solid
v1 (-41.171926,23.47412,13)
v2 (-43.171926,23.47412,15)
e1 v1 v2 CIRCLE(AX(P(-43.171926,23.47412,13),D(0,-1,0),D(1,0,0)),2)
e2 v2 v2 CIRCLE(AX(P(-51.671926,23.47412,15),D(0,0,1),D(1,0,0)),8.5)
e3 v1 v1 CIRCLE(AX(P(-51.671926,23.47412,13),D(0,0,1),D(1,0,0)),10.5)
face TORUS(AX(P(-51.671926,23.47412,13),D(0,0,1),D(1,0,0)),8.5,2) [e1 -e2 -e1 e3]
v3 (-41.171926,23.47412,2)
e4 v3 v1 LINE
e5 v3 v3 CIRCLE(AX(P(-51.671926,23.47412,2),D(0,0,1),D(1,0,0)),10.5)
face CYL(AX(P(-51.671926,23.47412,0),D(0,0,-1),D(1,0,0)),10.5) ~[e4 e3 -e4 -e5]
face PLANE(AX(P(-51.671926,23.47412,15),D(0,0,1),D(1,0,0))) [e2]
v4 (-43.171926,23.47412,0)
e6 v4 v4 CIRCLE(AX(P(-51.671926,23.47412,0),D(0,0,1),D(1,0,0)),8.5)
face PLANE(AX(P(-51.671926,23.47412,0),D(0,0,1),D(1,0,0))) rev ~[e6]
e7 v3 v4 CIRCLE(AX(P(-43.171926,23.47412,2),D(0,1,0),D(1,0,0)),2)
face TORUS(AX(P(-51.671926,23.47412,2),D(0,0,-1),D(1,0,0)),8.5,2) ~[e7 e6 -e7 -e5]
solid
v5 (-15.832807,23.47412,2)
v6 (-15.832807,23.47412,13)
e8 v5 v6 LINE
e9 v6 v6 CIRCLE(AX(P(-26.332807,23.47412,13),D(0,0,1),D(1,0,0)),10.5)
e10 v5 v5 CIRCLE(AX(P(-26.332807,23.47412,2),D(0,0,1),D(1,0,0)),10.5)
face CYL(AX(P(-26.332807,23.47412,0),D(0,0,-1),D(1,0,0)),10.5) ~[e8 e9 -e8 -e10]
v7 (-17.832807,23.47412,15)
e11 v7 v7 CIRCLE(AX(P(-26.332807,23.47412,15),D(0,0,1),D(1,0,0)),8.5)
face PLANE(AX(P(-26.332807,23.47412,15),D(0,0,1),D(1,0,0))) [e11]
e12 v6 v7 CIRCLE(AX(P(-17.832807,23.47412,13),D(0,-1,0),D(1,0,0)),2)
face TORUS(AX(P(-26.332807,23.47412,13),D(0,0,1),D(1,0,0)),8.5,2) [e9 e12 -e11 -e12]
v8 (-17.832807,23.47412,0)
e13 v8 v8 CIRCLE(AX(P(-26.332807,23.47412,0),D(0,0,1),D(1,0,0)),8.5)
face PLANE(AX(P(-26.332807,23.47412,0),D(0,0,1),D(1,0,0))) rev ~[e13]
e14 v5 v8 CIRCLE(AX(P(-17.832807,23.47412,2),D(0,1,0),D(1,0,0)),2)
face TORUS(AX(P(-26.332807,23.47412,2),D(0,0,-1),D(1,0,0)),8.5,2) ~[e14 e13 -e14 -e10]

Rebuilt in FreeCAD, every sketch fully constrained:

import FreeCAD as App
import Part
import Sketcher


def edges_at(feature, points):
    """Names of the edges that pass closest to the given points."""
    edges = feature.Shape.Edges
    near = lambda p: min(range(len(edges)), key=lambda i: edges[i].distToShape(Part.Vertex(*p))[0])
    return sorted({f"Edge{near(p) + 1}" for p in points})

doc = App.newDocument("Part")
body = doc.addObject("PartDesign::Body", "Body")
body.AllowCompound = True

sketch1 = body.newObject("Sketcher::SketchObject", "Sketch")
sketch1.AttachmentSupport = (doc.getObject("XY_Plane"), [""])
sketch1.MapMode = "FlatFace"
sketch1.addGeometry([
    Part.Circle(App.Vector(-52, 23, 0), App.Vector(0, 0, 1), 10),
    Part.Circle(App.Vector(-26, 23, 0), App.Vector(0, 0, 1), 10),
], False)
sketch1.addConstraint([
    Sketcher.Constraint("Equal", 0, 1),
    Sketcher.Constraint("Horizontal", 0, 3, 1, 3),
    Sketcher.Constraint("Diameter", 0, 21.0),
    Sketcher.Constraint("DistanceY", -1, 1, 0, 3, 23.47412),
    Sketcher.Constraint("DistanceX", 0, 3, 1, 3, 25.339119),
    Sketcher.Constraint("DistanceX", 0, 3, -1, 1, 51.671926),
])
pad1 = body.newObject("PartDesign::Pad", "Pad")
pad1.Profile = sketch1
pad1.Length = 15
doc.recompute()

fillet = body.newObject("PartDesign::Fillet", "Fillet")
fillet.Base = (pad1, edges_at(pad1, [
    (-36.833, 23.474, 15),
    (-62.172, 23.474, 15),
    (-62.172, 23.474, 0),
    (-36.833, 23.474, 0),
]))
fillet.Radius = 2

doc.recompute()
